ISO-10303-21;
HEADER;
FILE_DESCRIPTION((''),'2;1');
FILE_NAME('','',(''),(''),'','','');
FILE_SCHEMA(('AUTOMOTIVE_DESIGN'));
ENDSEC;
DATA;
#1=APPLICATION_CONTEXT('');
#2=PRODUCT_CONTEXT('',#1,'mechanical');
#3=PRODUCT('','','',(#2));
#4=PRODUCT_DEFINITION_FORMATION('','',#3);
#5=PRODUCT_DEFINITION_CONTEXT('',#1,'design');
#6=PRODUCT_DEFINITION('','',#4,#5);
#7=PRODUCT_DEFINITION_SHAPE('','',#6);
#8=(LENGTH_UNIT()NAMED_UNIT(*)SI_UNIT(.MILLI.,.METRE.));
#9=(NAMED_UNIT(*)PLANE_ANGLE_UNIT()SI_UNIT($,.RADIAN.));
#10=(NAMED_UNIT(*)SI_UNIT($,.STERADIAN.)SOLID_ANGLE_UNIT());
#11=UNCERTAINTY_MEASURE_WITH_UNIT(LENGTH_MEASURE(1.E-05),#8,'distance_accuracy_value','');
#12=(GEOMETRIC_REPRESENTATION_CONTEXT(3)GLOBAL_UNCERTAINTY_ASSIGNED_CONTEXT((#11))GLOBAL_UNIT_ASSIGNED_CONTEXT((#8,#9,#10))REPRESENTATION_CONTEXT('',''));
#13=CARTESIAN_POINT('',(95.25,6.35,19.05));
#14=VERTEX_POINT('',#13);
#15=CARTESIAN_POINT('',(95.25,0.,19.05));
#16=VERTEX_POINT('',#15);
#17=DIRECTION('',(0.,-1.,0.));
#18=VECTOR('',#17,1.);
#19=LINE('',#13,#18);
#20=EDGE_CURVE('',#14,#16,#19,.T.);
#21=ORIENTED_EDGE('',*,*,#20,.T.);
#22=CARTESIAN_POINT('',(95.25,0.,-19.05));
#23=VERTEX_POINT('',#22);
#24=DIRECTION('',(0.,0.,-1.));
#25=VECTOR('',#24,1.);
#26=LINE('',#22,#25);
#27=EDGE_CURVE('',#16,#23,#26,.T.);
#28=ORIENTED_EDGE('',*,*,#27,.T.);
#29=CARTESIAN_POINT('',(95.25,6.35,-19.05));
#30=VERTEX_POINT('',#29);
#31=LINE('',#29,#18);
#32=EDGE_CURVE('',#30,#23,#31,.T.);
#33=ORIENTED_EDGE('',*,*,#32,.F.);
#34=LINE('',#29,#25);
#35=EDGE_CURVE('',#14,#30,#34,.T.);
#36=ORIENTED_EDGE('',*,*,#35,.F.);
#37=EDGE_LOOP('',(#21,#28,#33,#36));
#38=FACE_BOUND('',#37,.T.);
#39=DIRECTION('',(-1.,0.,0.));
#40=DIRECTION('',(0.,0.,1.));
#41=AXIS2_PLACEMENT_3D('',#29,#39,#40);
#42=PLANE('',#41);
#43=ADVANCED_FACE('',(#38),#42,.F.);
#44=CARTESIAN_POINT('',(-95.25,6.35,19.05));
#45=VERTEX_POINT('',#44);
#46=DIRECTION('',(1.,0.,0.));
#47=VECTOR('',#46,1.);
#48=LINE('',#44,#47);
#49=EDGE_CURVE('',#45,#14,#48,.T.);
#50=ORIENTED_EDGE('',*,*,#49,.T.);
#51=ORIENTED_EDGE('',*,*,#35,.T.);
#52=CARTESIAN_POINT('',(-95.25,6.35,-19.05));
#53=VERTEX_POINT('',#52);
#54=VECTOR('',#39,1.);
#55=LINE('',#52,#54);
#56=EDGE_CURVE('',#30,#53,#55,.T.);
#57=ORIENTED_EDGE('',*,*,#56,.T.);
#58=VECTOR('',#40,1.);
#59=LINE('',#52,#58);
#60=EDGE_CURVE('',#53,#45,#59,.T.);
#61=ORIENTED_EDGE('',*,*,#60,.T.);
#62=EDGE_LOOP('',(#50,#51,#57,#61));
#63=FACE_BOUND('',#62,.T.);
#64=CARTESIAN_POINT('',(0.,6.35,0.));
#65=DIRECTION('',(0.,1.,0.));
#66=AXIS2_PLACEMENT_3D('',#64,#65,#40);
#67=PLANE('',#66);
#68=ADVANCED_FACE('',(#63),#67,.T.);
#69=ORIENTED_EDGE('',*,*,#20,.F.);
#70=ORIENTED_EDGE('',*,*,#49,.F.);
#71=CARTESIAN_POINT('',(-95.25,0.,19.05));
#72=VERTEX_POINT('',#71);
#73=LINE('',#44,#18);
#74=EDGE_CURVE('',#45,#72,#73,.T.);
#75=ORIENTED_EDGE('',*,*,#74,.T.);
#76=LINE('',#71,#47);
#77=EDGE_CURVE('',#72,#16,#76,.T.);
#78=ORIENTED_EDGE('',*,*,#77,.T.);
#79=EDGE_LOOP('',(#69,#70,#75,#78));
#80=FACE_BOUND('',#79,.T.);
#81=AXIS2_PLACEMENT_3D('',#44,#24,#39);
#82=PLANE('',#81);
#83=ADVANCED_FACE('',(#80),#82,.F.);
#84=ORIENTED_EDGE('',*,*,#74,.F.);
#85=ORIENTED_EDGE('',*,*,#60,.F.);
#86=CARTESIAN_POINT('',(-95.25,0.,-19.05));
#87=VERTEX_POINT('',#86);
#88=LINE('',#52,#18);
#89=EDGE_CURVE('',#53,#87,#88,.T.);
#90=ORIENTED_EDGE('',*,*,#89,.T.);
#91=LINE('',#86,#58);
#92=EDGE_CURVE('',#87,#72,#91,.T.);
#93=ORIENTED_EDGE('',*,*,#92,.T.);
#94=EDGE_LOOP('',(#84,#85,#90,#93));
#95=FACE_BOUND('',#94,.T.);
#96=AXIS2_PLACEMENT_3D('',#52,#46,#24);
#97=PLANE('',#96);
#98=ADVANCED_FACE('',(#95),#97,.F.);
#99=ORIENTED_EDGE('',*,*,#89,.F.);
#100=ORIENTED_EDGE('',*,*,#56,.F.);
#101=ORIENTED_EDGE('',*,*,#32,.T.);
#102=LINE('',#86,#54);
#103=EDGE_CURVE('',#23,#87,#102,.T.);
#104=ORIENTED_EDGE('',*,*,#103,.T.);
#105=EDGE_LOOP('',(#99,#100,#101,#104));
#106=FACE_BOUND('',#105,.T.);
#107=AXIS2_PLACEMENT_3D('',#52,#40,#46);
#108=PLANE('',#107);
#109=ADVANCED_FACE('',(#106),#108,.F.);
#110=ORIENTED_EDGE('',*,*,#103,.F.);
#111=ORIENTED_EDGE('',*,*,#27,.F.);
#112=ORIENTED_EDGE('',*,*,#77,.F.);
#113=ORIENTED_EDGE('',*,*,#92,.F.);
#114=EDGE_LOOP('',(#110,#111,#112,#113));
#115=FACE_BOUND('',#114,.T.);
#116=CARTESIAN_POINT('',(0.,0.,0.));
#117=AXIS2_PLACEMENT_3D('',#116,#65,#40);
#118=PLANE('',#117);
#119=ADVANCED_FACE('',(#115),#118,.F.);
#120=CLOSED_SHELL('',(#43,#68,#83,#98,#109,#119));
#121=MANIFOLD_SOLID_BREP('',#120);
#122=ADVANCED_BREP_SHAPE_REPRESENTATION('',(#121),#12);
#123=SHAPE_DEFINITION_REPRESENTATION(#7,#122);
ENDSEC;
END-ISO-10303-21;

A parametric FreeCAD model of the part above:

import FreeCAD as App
import Part
import Sketcher
Q = App.Units.Quantity

doc = App.newDocument("Part")
body = doc.addObject("PartDesign::Body", "Body")

sketch1 = doc.addObject("Sketcher::SketchObject", "Sketch")
body.addObject(sketch1)
sketch1.AttachmentSupport = (doc.XZ_Plane, [""])
sketch1.MapMode = "FlatFace"
sketch1.addGeometry(Part.LineSegment(App.Vector(-95.25, -19.05, 0), App.Vector(-95.25, 19.05, 0)), False)
sketch1.addGeometry(Part.LineSegment(App.Vector(-95.25, 19.05, 0), App.Vector(95.25, 19.05, 0)), False)
sketch1.addGeometry(Part.LineSegment(App.Vector(95.25, 19.05, 0), App.Vector(95.25, -19.05, 0)), False)
sketch1.addGeometry(Part.LineSegment(App.Vector(95.25, -19.05, 0), App.Vector(-95.25, -19.05, 0)), False)
sketch1.addConstraint(Sketcher.Constraint("Coincident", 0, 2, 1, 1))
sketch1.addConstraint(Sketcher.Constraint("Coincident", 1, 2, 2, 1))
sketch1.addConstraint(Sketcher.Constraint("Coincident", 2, 2, 3, 1))
sketch1.addConstraint(Sketcher.Constraint("Coincident", 3, 2, 0, 1))
sketch1.addConstraint(Sketcher.Constraint("Vertical", 0))
sketch1.addConstraint(Sketcher.Constraint("Horizontal", 1))
sketch1.addConstraint(Sketcher.Constraint("Vertical", 2))
sketch1.addConstraint(Sketcher.Constraint("Horizontal", 3))
sketch1.addConstraint(Sketcher.Constraint("Symmetric", 0, 2, 2, 2, -1, 1))
sketch1.addConstraint(Sketcher.Constraint("DistanceX", 1, 1, 1, 2, Q("7.5 in")))
sketch1.addConstraint(Sketcher.Constraint("DistanceY", 0, 1, 0, 2, Q("1.5 in")))
pad1 = doc.addObject("PartDesign::Pad", "Pad")
body.addObject(pad1)
pad1.Profile = sketch1
pad1.Length = Q("0.25 in")
pad1.Reversed = True

doc.recompute()
